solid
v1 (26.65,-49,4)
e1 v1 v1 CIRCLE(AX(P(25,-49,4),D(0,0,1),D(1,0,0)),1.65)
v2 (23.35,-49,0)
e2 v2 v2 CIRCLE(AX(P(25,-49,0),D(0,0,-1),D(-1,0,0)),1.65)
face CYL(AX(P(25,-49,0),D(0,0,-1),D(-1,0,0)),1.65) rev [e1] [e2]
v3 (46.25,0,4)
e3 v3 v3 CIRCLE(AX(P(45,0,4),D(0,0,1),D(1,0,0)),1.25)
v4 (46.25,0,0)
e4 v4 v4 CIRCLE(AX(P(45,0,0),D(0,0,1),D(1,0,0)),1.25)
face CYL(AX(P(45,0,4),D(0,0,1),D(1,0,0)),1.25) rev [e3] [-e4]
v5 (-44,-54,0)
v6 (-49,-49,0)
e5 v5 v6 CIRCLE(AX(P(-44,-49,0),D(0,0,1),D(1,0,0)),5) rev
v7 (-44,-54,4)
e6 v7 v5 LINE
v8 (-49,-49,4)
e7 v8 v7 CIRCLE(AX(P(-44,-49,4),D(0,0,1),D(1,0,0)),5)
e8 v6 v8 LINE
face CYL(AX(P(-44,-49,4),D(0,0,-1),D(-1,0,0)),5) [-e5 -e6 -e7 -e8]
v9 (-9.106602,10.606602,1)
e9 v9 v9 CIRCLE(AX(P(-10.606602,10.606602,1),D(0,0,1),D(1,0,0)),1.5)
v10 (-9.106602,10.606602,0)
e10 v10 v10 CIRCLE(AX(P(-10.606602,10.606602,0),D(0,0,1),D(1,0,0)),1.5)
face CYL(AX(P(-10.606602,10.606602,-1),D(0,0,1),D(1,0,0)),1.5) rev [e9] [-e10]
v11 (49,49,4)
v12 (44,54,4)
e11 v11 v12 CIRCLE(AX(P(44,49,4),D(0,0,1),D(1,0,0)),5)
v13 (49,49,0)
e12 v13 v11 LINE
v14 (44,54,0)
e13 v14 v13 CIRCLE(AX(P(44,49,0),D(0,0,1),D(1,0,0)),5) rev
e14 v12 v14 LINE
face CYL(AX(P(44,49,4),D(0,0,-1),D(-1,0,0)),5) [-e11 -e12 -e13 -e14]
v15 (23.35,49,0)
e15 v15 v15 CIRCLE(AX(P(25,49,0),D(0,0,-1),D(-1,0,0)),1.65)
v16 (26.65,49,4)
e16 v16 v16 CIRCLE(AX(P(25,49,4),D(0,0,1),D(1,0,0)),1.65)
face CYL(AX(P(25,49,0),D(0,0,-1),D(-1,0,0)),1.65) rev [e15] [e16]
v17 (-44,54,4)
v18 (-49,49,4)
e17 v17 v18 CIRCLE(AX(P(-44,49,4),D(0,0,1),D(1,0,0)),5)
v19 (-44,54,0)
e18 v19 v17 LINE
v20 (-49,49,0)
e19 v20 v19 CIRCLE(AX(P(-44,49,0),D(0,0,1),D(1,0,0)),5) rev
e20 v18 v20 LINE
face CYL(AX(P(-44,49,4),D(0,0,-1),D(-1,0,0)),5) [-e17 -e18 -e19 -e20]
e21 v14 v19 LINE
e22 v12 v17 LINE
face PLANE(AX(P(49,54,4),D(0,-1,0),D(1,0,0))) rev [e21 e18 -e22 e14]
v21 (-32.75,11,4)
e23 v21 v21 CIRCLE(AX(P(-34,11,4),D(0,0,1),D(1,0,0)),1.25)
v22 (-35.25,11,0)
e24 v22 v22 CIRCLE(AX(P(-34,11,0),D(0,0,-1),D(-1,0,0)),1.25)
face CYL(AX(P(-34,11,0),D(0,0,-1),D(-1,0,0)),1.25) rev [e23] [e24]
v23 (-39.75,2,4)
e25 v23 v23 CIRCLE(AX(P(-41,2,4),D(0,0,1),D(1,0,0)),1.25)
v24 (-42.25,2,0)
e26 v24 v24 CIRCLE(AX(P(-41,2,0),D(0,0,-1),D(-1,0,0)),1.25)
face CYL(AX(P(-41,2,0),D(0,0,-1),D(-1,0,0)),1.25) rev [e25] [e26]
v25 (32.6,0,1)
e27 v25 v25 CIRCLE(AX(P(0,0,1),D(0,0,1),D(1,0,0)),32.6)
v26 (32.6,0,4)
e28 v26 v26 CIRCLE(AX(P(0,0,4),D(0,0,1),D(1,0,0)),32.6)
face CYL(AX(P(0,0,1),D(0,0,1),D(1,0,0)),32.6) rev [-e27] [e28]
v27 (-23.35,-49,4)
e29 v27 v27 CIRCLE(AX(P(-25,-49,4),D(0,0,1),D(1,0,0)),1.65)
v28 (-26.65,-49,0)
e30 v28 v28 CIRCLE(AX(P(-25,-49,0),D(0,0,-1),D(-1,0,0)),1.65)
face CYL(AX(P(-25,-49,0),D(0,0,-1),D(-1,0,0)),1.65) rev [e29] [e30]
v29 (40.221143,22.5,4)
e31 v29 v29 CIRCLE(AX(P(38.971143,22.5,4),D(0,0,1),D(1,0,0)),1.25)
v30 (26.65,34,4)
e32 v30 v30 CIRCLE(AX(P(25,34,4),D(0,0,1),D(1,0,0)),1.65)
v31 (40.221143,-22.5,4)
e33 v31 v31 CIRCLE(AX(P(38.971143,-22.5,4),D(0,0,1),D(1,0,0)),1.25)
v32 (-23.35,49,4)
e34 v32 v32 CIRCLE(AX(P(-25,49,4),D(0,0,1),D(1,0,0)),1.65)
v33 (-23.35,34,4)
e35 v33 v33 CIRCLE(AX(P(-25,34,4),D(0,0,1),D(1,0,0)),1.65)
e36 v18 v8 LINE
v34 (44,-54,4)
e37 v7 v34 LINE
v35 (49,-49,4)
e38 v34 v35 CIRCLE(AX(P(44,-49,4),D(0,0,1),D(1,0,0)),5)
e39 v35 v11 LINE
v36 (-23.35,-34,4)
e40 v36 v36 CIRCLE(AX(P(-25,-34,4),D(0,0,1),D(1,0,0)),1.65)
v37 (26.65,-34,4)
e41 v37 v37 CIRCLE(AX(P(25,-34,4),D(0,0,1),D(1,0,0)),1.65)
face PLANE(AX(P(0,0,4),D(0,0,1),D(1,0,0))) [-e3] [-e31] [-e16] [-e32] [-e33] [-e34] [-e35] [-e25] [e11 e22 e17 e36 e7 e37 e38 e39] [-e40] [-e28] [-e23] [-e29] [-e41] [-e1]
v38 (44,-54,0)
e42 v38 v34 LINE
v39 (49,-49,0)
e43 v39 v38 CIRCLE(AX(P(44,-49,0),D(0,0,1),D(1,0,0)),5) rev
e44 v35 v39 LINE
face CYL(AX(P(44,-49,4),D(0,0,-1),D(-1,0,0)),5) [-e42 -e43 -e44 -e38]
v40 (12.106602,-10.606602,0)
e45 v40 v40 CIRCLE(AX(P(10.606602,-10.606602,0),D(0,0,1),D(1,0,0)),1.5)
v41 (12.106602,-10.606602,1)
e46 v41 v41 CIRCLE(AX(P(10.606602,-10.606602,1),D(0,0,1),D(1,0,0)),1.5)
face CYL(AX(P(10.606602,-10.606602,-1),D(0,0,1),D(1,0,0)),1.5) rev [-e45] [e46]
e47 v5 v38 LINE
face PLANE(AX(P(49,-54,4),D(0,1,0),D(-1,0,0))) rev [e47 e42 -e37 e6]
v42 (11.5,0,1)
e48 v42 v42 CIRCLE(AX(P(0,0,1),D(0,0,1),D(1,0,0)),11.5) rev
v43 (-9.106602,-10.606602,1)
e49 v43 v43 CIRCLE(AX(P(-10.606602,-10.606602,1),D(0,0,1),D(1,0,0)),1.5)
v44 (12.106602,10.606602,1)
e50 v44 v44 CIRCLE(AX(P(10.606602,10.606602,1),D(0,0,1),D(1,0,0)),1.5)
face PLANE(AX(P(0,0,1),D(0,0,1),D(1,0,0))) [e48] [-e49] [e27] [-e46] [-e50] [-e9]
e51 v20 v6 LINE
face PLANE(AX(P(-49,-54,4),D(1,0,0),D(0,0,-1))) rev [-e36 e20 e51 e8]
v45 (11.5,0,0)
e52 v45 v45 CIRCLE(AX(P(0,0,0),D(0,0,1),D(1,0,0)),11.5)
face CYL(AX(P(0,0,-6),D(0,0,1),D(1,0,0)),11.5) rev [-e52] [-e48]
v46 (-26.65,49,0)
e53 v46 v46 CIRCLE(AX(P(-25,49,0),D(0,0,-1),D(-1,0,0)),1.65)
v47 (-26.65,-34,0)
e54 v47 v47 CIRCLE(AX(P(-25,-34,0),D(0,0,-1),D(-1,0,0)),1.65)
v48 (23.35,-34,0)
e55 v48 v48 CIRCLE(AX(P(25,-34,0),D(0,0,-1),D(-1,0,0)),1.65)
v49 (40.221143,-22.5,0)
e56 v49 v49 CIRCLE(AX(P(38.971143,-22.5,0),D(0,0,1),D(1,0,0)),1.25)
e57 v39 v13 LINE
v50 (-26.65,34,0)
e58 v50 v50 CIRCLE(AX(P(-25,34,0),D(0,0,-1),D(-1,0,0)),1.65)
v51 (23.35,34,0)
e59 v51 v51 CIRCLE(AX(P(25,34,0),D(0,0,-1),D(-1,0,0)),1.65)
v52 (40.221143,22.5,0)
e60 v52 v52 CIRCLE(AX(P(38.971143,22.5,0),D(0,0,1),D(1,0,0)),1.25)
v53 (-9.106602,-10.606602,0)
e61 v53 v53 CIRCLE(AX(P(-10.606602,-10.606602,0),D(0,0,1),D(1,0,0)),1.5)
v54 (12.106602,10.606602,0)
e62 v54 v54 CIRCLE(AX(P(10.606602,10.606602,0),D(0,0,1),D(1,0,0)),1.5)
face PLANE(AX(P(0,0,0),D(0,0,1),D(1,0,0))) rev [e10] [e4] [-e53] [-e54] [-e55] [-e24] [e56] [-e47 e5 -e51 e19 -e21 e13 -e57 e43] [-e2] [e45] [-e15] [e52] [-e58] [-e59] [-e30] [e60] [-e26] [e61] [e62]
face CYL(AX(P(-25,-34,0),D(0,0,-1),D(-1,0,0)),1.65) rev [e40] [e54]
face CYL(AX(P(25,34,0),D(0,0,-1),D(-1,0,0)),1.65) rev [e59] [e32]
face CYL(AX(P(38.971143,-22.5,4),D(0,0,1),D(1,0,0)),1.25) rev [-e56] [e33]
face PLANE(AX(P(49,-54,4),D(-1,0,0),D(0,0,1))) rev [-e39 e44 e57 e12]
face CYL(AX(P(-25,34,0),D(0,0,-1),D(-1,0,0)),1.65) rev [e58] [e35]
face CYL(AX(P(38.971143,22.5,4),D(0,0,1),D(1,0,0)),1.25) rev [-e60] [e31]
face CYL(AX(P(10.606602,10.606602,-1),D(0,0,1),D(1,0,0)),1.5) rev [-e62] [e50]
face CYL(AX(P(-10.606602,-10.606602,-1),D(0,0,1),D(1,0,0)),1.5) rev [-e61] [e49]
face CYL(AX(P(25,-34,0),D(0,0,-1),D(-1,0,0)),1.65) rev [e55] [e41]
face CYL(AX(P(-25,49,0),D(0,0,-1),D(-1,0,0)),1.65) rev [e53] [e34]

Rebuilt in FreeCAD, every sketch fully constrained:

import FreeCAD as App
import Part
import Sketcher
from FreeCAD import Vector
Q = App.Units.Quantity


def edges_at(feature, points):
    """Names of the edges that pass closest to the given points."""
    edges = feature.Shape.Edges
    near = lambda p: min(range(len(edges)), key=lambda i: edges[i].distToShape(Part.Vertex(*p))[0])
    return sorted({f"Edge{near(p) + 1}" for p in points})

doc = App.newDocument("Part")
body = doc.addObject("PartDesign::Body", "Body")

# Sketch on XY plane
sketch1 = body.newObject("Sketcher::SketchObject", "Sketch")
sketch1.AttachmentSupport = (doc.getObject("XY_Plane"), [""])
sketch1.MapMode = "FlatFace"
sketch1.addGeometry(Part.LineSegment(Vector(-49, 54, 0), Vector(-49, -54, 0)), False)
sketch1.addGeometry(Part.LineSegment(Vector(-49, -54, 0), Vector(49, -54, 0)), False)
sketch1.addGeometry(Part.LineSegment(Vector(49, -54, 0), Vector(49, 54, 0)), False)
sketch1.addGeometry(Part.LineSegment(Vector(49, 54, 0), Vector(-49, 54, 0)), False)
sketch1.addConstraint(Sketcher.Constraint("Coincident", 0, 2, 1, 1))
sketch1.addConstraint(Sketcher.Constraint("Coincident", 1, 2, 2, 1))
sketch1.addConstraint(Sketcher.Constraint("Coincident", 2, 2, 3, 1))
sketch1.addConstraint(Sketcher.Constraint("Coincident", 3, 2, 0, 1))
sketch1.addConstraint(Sketcher.Constraint("Vertical", 0))
sketch1.addConstraint(Sketcher.Constraint("Horizontal", 1))
sketch1.addConstraint(Sketcher.Constraint("Vertical", 2))
sketch1.addConstraint(Sketcher.Constraint("Horizontal", 3))
sketch1.addConstraint(Sketcher.Constraint("Symmetric", 0, 2, 2, 2, -1, 1))
sketch1.addConstraint(Sketcher.Constraint("DistanceX", 1, 1, 1, 2, Q("98 mm")))
sketch1.addConstraint(Sketcher.Constraint("DistanceY", 0, 2, 0, 1, Q("108 mm")))
pad1 = body.newObject("PartDesign::Pad", "Pad")
pad1.Profile = sketch1
pad1.Length = 4

# Sketch on XY plane
sketch2 = body.newObject("Sketcher::SketchObject", "Sketch001")
sketch2.AttachmentSupport = (doc.getObject("XY_Plane"), [""])
sketch2.MapMode = "FlatFace"
sketch2.AttachmentOffset = App.Placement(Vector(0, 0, 4), App.Rotation())
sketch2.addGeometry(Part.Circle(Vector(0, 0, 0), Vector(0, 0, 1), 12), False)
sketch2.addConstraint(Sketcher.Constraint("Coincident", 0, 3, -1, 1))
sketch2.addConstraint(Sketcher.Constraint("Diameter", 0, Q("23 mm")))
pocket1 = body.newObject("PartDesign::Pocket", "Pocket")
pocket1.Profile = sketch2
pocket1.Length = 10

# Sketch on XY plane
sketch3 = body.newObject("Sketcher::SketchObject", "Sketch002")
sketch3.AttachmentSupport = (doc.getObject("XY_Plane"), [""])
sketch3.MapMode = "FlatFace"
sketch3.AttachmentOffset = App.Placement(Vector(0, 0, 4), App.Rotation())
sketch3.addGeometry(Part.Circle(Vector(0, 0, 0), Vector(0, 0, 1), 33), False)
sketch3.addConstraint(Sketcher.Constraint("Coincident", 0, 3, -1, 1))
sketch3.addConstraint(Sketcher.Constraint("Diameter", 0, Q("65.2 mm")))
pocket2 = body.newObject("PartDesign::Pocket", "Pocket001")
pocket2.Profile = sketch3
pocket2.Length = 3

# Sketch on XY plane
sketch4 = body.newObject("Sketcher::SketchObject", "Sketch003")
sketch4.AttachmentSupport = (doc.getObject("XY_Plane"), [""])
sketch4.MapMode = "FlatFace"
sketch4.AttachmentOffset = App.Placement(Vector(0, 0, 1), App.Rotation())
sketch4.addGeometry(Part.Circle(Vector(-10.6, 10.6, 0), Vector(0, 0, 1), 1.5), False)
sketch4.addGeometry(Part.Circle(Vector(10.6, -10.6, 0), Vector(0, 0, 1), 1.5), False)
sketch4.addGeometry(Part.Circle(Vector(10.6, 10.6, 0), Vector(0, 0, 1), 1.5), False)
sketch4.addGeometry(Part.Circle(Vector(-10.6, -10.6, 0), Vector(0, 0, 1), 1.5), False)
sketch4.addConstraint(Sketcher.Constraint("Equal", 0, 1))
sketch4.addConstraint(Sketcher.Constraint("Equal", 1, 2))
sketch4.addConstraint(Sketcher.Constraint("Equal", 2, 3))
sketch4.addConstraint(Sketcher.Constraint("Symmetric", 0, 3, 1, 3, -1, 1))
sketch4.addConstraint(Sketcher.Constraint("Symmetric", 2, 3, 3, 3, -1, 1))
sketch4.addConstraint(Sketcher.Constraint("Symmetric", 0, 3, 2, 3, -2))
sketch4.addConstraint(Sketcher.Constraint("Diameter", 0, Q("3 mm")))
sketch4.addConstraint(Sketcher.Constraint("DistanceX", 0, 3, -1, 1, Q("10.606602 mm")))
sketch4.addConstraint(Sketcher.Constraint("DistanceY", -1, 1, 0, 3, Q("10.606602 mm")))
pocket3 = body.newObject("PartDesign::Pocket", "Pocket002")
pocket3.Profile = sketch4
pocket3.Length = 2
doc.recompute()

fillet = body.newObject("PartDesign::Fillet", "Fillet")
fillet.Base = (pocket3, edges_at(pocket3, [
    (-49, 54, 2),
    (49, 54, 2),
    (49, -54, 2),
    (-49, -54, 2),
]))
fillet.Radius = 5

# Sketch on XY plane
sketch5 = body.newObject("Sketcher::SketchObject", "Sketch004")
sketch5.AttachmentSupport = (doc.getObject("XY_Plane"), [""])
sketch5.MapMode = "FlatFace"
sketch5.addGeometry(Part.Circle(Vector(25, 49, 0), Vector(0, 0, 1), 1.6), False)
sketch5.addGeometry(Part.Circle(Vector(25, 34, 0), Vector(0, 0, 1), 1.6), False)
sketch5.addGeometry(Part.Circle(Vector(-25, 34, 0), Vector(0, 0, 1), 1.6), False)
sketch5.addGeometry(Part.Circle(Vector(-25, 49, 0), Vector(0, 0, 1), 1.6), False)
sketch5.addGeometry(Part.Circle(Vector(25, -34, 0), Vector(0, 0, 1), 1.6), False)
sketch5.addGeometry(Part.Circle(Vector(25, -49, 0), Vector(0, 0, 1), 1.6), False)
sketch5.addGeometry(Part.Circle(Vector(-25, -49, 0), Vector(0, 0, 1), 1.6), False)
sketch5.addGeometry(Part.Circle(Vector(-25, -34, 0), Vector(0, 0, 1), 1.6), False)
sketch5.addConstraint(Sketcher.Constraint("Equal", 0, 1))
sketch5.addConstraint(Sketcher.Constraint("Equal", 1, 2))
sketch5.addConstraint(Sketcher.Constraint("Equal", 2, 3))
sketch5.addConstraint(Sketcher.Constraint("Equal", 3, 4))
sketch5.addConstraint(Sketcher.Constraint("Equal", 4, 5))
sketch5.addConstraint(Sketcher.Constraint("Equal", 5, 6))
sketch5.addConstraint(Sketcher.Constraint("Equal", 6, 7))
sketch5.addConstraint(Sketcher.Constraint("Symmetric", 2, 3, 4, 3, -1, 1))
sketch5.addConstraint(Sketcher.Constraint("Symmetric", 3, 3, 5, 3, -1, 1))
sketch5.addConstraint(Sketcher.Constraint("Symmetric", 0, 3, 6, 3, -1, 1))
sketch5.addConstraint(Sketcher.Constraint("Symmetric", 1, 3, 7, 3, -1, 1))
sketch5.addConstraint(Sketcher.Constraint("Symmetric", 1, 3, 2, 3, -2))
sketch5.addConstraint(Sketcher.Constraint("Symmetric", 0, 3, 3, 3, -2))
sketch5.addConstraint(Sketcher.Constraint("Vertical", 0, 3, 1, 3))
sketch5.addConstraint(Sketcher.Constraint("Diameter", 0, Q("3.3 mm")))
sketch5.addConstraint(Sketcher.Constraint("DistanceX", -1, 1, 0, 3, Q("25 mm")))
sketch5.addConstraint(Sketcher.Constraint("DistanceY", -1, 1, 0, 3, Q("49 mm")))
sketch5.addConstraint(Sketcher.Constraint("DistanceY", -1, 1, 1, 3, Q("34 mm")))
doc.recompute()
hole = body.newObject("PartDesign::Hole", "Hole")
hole.Profile = sketch5
hole.ThreadType = "None"
hole.Diameter = 3.3
hole.DepthType = "Dimension"
hole.Depth = 10.1
hole.DrillPoint = "Angled"
hole.DrillPointAngle = 118
hole.Reversed = True

# Sketch on XY plane
sketch6 = body.newObject("Sketcher::SketchObject", "Sketch005")
sketch6.AttachmentSupport = (doc.getObject("XY_Plane"), [""])
sketch6.MapMode = "FlatFace"
sketch6.addGeometry(Part.Circle(Vector(-41, 2, 0), Vector(0, 0, 1), 1.2), False)
sketch6.addGeometry(Part.Circle(Vector(-34, 11, 0), Vector(0, 0, 1), 1.2), False)
sketch6.addConstraint(Sketcher.Constraint("Equal", 0, 1))
sketch6.addConstraint(Sketcher.Constraint("Diameter", 0, Q("2.5 mm")))
sketch6.addConstraint(Sketcher.Constraint("DistanceX", 0, 3, -1, 1, Q("41 mm")))
sketch6.addConstraint(Sketcher.Constraint("DistanceY", -1, 1, 0, 3, Q("2 mm")))
sketch6.addConstraint(Sketcher.Constraint("DistanceX", 1, 3, -1, 1, Q("34 mm")))
sketch6.addConstraint(Sketcher.Constraint("DistanceY", -1, 1, 1, 3, Q("11 mm")))
doc.recompute()
hole2 = body.newObject("PartDesign::Hole", "Hole001")
hole2.Profile = sketch6
hole2.ThreadType = "None"
hole2.Diameter = 2.5
hole2.DepthType = "Dimension"
hole2.Depth = 7.5
hole2.DrillPoint = "Angled"
hole2.DrillPointAngle = 118
hole2.Reversed = True

# Sketch on XY plane
sketch7 = body.newObject("Sketcher::SketchObject", "Sketch006")
sketch7.AttachmentSupport = (doc.getObject("XY_Plane"), [""])
sketch7.MapMode = "FlatFace"
sketch7.AttachmentOffset = App.Placement(Vector(0, 0, 4), App.Rotation())
sketch7.addGeometry(Part.Circle(Vector(39, 22.5, 0), Vector(0, 0, 1), 1.2), False)
sketch7.addGeometry(Part.Circle(Vector(45, 0, 0), Vector(0, 0, 1), 1.2), False)
sketch7.addGeometry(Part.Circle(Vector(39, -22.5, 0), Vector(0, 0, 1), 1.2), False)
sketch7.addConstraint(Sketcher.Constraint("Equal", 0, 1))
sketch7.addConstraint(Sketcher.Constraint("Equal", 1, 2))
sketch7.addConstraint(Sketcher.Constraint("Symmetric", 0, 3, 2, 3, -1))
sketch7.addConstraint(Sketcher.Constraint("PointOnObject", 1, 3, -1))
sketch7.addConstraint(Sketcher.Constraint("Diameter", 0, Q("2.5 mm")))
sketch7.addConstraint(Sketcher.Constraint("DistanceX", -1, 1, 1, 3, Q("45 mm")))
sketch7.addConstraint(Sketcher.Constraint("DistanceY", 2, 3, 0, 3, Q("45 mm")))
sketch7.addConstraint(Sketcher.Constraint("DistanceX", -1, 1, 0, 3, Q("38.971143 mm")))
doc.recompute()
hole3 = body.newObject("PartDesign::Hole", "Hole002")
hole3.Profile = sketch7
hole3.ThreadType = "None"
hole3.Diameter = 2.5
hole3.DepthType = "Dimension"
hole3.Depth = 7.5
hole3.DrillPoint = "Angled"
hole3.DrillPointAngle = 118

doc.recompute()
